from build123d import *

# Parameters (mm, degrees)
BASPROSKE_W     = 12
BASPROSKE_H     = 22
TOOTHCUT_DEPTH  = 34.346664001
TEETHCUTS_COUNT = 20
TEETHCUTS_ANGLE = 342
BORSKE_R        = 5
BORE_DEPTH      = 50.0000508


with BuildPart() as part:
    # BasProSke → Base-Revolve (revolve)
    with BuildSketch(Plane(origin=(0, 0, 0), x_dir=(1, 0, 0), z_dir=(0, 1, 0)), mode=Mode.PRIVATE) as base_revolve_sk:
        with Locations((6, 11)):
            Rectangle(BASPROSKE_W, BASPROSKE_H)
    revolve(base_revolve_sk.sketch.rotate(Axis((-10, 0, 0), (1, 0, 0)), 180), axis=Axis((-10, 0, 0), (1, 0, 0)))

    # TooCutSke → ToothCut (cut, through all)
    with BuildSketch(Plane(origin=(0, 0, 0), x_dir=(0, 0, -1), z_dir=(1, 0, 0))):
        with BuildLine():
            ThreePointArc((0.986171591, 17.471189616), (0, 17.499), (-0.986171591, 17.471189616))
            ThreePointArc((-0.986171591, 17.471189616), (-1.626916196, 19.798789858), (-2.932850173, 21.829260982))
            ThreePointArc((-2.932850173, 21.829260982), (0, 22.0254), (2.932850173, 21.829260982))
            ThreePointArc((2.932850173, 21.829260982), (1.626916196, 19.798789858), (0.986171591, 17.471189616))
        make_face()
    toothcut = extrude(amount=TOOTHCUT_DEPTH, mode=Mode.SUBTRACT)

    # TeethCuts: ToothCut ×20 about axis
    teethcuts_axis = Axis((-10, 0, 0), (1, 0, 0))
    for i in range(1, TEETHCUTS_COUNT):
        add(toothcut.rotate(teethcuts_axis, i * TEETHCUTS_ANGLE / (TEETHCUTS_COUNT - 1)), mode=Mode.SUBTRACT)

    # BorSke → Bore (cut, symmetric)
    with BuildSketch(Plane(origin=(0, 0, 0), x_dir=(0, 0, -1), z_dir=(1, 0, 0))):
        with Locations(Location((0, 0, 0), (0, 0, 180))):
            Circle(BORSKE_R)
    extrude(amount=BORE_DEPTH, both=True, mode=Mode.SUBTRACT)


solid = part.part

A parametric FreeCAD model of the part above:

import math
import FreeCAD as App
import Part
import Sketcher

V = App.Vector


def add_polygon(sketch, points):
    """Adds a closed chain of lines whose ends are joined by coincident constraints."""
    first, n = sketch.GeometryCount, len(points)
    for a, b in zip(points, points[1:] + points[:1]):
        sketch.addGeometry(Part.LineSegment(App.Vector(*a, 0), App.Vector(*b, 0)), False)
    for i in range(n):
        sketch.addConstraint(Sketcher.Constraint("Coincident", first + i, 2, first + (i + 1) % n, 1))

doc = App.newDocument("Part")
body = doc.addObject("PartDesign::Body", "Body")

# Sketch on XZ plane
sketch1 = body.newObject("Sketcher::SketchObject", "Sketch")
sketch1.AttachmentSupport = (doc.getObject("XZ_Plane"), [""])
sketch1.MapMode = "FlatFace"
add_polygon(sketch1, [(0, -22), (0, 0), (12, 0), (12, -22)])  # lines 0-3
sketch1.addConstraint([
    Sketcher.Constraint("Vertical", 0),
    Sketcher.Constraint("Horizontal", 1),
    Sketcher.Constraint("Vertical", 2),
    Sketcher.Constraint("Horizontal", 3),
    Sketcher.Constraint("Coincident", 0, 2, -1, 1),
    Sketcher.Constraint("DistanceX", 1, 1, 1, 2, 12.0),
    Sketcher.Constraint("DistanceY", 0, 1, 0, 2, 22.0),
])
revolution = body.newObject("PartDesign::Revolution", "Revolution")
revolution.Profile = sketch1
revolution.ReferenceAxis = (sketch1, ["H_Axis"])
revolution.Angle = 360

# Sketch on YZ plane
sketch2 = body.newObject("Sketcher::SketchObject", "Sketch001")
sketch2.AttachmentSupport = (doc.getObject("YZ_Plane"), [""])
sketch2.MapMode = "FlatFace"
sketch2.addGeometry([
    Part.ArcOfCircle(Part.Circle(V(0, 0, 0), V(0, 0, 1), 17.5), math.radians(-3.23), math.radians(3.23)),
    Part.ArcOfCircle(Part.Circle(V(16.5, -8.9, 0), V(0, 0, 1), 8), math.radians(49), math.radians(83)),
    Part.ArcOfCircle(Part.Circle(V(0, 0, 0), V(0, 0, 1), 22), math.radians(-7.65), math.radians(7.65)),
    Part.ArcOfCircle(Part.Circle(V(16.5, 8.9, 0), V(0, 0, 1), 8), math.radians(-83), math.radians(-49)),
], False)
sketch2.addConstraint([
    Sketcher.Constraint("Coincident", 0, 1, 1, 2),
    Sketcher.Constraint("Coincident", 1, 1, 2, 1),
    Sketcher.Constraint("Coincident", 2, 2, 3, 2),
    Sketcher.Constraint("Coincident", 3, 1, 0, 2),
    Sketcher.Constraint("Coincident", 0, 3, -1, 1),
    Sketcher.Constraint("Coincident", 2, 3, -1, 1),
    Sketcher.Constraint("Equal", 1, 3),
    Sketcher.Constraint("Symmetric", 1, 3, 3, 3, -1),
    Sketcher.Constraint("Radius", 1, 8.0),
    Sketcher.Constraint("Radius", 0, 17.499),
    Sketcher.Constraint("Radius", 2, 22.0254),
    Sketcher.Constraint("DistanceY", 1, 1, 2, 2, 5.8657),
    Sketcher.Constraint("DistanceX", -1, 1, 1, 3, 16.536031),
])
pocket1 = body.newObject("PartDesign::Pocket", "Pocket")
pocket1.Profile = sketch2
pocket1.Type = "ThroughAll"
pocket1.Reversed = True
doc.recompute()

polarpattern = body.newObject("PartDesign::PolarPattern", "PolarPattern")
polarpattern.Originals = [pocket1]
polarpattern.Axis = (doc.getObject("X_Axis"), [""])
polarpattern.Angle = 360
polarpattern.Occurrences = 20
body.Tip = polarpattern

# Sketch on YZ plane
sketch3 = body.newObject("Sketcher::SketchObject", "Sketch002")
sketch3.AttachmentSupport = (doc.getObject("YZ_Plane"), [""])
sketch3.MapMode = "FlatFace"
sketch3.addGeometry(Part.Circle(V(0, 0, 0), V(0, 0, 1), 5), False)
sketch3.addConstraint([
    Sketcher.Constraint("Coincident", 0, 3, -1, 1),
    Sketcher.Constraint("Diameter", 0, 10.0),
])
pocket2 = body.newObject("PartDesign::Pocket", "Pocket001")
pocket2.Profile = sketch3
pocket2.Length = 100.000102
pocket2.Midplane = True

doc.recompute()
